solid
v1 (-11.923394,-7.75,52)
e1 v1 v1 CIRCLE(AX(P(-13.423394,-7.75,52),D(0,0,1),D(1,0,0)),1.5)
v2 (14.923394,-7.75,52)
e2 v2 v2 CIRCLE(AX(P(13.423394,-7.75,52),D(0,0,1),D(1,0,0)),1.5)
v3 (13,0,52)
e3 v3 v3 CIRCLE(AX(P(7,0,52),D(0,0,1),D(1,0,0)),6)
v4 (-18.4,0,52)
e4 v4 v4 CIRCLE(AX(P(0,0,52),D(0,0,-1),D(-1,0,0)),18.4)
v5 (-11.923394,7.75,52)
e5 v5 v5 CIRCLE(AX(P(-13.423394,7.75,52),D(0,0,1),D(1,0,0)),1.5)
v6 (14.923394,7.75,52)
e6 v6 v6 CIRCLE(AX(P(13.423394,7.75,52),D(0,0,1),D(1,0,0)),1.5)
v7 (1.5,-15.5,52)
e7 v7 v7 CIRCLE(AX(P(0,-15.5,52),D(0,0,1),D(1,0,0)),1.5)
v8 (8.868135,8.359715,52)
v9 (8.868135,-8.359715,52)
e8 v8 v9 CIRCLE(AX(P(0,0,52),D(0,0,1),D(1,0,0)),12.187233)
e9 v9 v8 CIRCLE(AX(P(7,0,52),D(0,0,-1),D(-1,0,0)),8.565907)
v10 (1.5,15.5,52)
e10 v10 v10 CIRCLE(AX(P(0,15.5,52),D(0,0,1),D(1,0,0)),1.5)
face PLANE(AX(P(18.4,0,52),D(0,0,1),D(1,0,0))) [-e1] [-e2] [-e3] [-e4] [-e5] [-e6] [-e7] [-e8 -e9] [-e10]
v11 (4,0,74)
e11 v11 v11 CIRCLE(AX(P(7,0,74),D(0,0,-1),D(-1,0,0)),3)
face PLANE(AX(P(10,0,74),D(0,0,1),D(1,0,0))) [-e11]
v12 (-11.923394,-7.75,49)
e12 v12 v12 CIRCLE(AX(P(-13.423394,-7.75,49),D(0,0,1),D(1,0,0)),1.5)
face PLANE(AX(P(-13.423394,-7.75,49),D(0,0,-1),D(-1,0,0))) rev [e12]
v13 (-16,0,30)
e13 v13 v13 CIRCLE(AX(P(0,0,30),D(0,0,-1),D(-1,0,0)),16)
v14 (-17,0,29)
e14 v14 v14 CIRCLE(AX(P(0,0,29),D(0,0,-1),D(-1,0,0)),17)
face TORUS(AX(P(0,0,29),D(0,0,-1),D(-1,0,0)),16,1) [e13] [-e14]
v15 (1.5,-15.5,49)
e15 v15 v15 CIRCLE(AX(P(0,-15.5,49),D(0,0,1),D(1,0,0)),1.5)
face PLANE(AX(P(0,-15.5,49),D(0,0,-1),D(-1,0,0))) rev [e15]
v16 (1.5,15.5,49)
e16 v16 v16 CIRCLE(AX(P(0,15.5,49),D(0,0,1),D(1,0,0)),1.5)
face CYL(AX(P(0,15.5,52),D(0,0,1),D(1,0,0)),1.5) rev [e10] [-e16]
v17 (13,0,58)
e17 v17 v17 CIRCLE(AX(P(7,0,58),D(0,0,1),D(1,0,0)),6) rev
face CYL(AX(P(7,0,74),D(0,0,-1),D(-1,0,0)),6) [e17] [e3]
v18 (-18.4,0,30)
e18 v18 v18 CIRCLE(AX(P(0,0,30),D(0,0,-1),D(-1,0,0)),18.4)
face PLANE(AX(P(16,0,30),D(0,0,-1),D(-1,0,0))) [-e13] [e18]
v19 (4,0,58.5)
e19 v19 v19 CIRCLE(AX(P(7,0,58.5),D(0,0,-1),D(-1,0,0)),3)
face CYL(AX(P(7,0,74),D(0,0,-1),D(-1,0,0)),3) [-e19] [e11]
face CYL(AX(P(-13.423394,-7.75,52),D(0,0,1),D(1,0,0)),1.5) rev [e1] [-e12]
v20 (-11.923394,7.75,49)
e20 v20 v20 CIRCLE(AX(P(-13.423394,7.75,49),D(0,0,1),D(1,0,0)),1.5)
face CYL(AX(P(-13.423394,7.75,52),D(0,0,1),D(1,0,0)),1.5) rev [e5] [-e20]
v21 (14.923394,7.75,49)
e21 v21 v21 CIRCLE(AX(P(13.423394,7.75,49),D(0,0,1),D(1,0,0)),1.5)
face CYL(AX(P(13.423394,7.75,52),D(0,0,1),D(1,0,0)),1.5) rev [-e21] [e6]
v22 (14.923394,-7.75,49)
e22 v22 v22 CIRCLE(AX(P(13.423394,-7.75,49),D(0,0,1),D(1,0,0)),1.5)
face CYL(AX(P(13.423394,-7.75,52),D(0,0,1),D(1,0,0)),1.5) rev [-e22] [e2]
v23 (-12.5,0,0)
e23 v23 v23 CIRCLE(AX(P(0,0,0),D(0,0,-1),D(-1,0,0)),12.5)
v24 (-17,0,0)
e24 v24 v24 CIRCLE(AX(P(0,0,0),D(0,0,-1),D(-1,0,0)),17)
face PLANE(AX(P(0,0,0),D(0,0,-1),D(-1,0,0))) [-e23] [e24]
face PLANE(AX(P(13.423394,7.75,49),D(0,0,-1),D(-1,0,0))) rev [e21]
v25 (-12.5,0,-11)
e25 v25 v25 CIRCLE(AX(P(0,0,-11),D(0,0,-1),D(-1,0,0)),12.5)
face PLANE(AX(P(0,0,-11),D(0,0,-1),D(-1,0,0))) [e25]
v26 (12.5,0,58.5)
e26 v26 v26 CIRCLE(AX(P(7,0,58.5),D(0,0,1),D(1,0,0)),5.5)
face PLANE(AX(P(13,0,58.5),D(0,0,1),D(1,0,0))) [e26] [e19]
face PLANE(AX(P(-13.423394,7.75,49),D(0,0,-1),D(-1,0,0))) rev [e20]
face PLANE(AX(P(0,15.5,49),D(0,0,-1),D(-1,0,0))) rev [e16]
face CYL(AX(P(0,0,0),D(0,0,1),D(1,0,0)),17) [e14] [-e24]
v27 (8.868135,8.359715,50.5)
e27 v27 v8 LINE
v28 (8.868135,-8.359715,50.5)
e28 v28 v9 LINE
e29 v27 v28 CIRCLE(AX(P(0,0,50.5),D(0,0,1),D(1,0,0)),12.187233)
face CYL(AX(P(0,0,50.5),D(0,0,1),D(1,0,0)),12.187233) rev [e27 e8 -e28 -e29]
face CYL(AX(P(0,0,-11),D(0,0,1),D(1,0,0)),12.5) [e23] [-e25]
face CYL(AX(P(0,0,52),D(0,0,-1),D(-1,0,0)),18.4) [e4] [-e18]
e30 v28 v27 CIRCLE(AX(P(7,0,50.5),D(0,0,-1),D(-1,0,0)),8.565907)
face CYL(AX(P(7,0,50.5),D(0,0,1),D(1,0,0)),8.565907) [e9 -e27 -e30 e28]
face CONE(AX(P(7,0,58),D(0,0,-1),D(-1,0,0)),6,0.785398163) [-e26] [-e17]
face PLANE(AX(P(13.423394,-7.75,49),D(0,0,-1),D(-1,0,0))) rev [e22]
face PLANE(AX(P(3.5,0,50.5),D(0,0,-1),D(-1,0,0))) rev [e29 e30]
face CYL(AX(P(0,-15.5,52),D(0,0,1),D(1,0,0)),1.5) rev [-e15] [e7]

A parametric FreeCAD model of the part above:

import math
import FreeCAD as App
import Part
import Sketcher

V = App.Vector


def edges_at(feature, points):
    """Names of the edges that pass closest to the given points."""
    edges = feature.Shape.Edges
    near = lambda p: min(range(len(edges)), key=lambda i: edges[i].distToShape(Part.Vertex(*p))[0])
    return sorted({f"Edge{near(p) + 1}" for p in points})


def add_polygon(sketch, points):
    """Adds a closed chain of lines whose ends are joined by coincident constraints."""
    first, n = sketch.GeometryCount, len(points)
    for a, b in zip(points, points[1:] + points[:1]):
        sketch.addGeometry(Part.LineSegment(App.Vector(*a, 0), App.Vector(*b, 0)), False)
    for i in range(n):
        sketch.addConstraint(Sketcher.Constraint("Coincident", first + i, 2, first + (i + 1) % n, 1))

doc = App.newDocument("Part")
body = doc.addObject("PartDesign::Body", "Body")

# Sketch on XZ plane
sketch1 = body.newObject("Sketcher::SketchObject", "Sketch")
sketch1.AttachmentSupport = (doc.getObject("XZ_Plane"), [""])
sketch1.MapMode = "FlatFace"
sketch1.addGeometry([
    Part.LineSegment(V(18.4, 52, 0), V(0, 52, 0)),  # 0
    Part.LineSegment(V(0, 52, 0), V(0, 29, 0)),  # 1
    Part.LineSegment(V(0, 29, 0), V(17, 29, 0)),  # 2
    Part.ArcOfCircle(Part.Circle(V(16, 29, 0), V(0, 0, 1), 1), math.radians(0), math.radians(90)),  # 3
    Part.LineSegment(V(16, 30, 0), V(18.4, 30, 0)),  # 4
    Part.LineSegment(V(18.4, 30, 0), V(18.4, 52, 0)),  # 5
], False)
sketch1.addConstraint([
    Sketcher.Constraint("Coincident", 0, 2, 1, 1),
    Sketcher.Constraint("Coincident", 1, 2, 2, 1),
    Sketcher.Constraint("Coincident", 2, 2, 3, 1),
    Sketcher.Constraint("Tangent", 3, 2, 4, 1),
    Sketcher.Constraint("Coincident", 4, 2, 5, 1),
    Sketcher.Constraint("Coincident", 5, 2, 0, 1),
    Sketcher.Constraint("Horizontal", 0),
    Sketcher.Constraint("Vertical", 1),
    Sketcher.Constraint("Horizontal", 2),
    Sketcher.Constraint("Horizontal", 4),
    Sketcher.Constraint("Vertical", 5),
    Sketcher.Constraint("PointOnObject", 0, 2, -2),
    Sketcher.Constraint("Horizontal", 3, 3, 1, 2),
    Sketcher.Constraint("Radius", 3, 1.0),
    Sketcher.Constraint("DistanceX", 2, 1, 2, 2, 17.0),
    Sketcher.Constraint("DistanceY", 1, 2, 1, 1, 23.0),
    Sketcher.Constraint("DistanceX", 0, 2, 0, 1, 18.4),
    Sketcher.Constraint("DistanceY", -1, 1, 3, 3, 29.0),
])
revolution = body.newObject("PartDesign::Revolution", "Revolution")
revolution.Profile = sketch1
revolution.ReferenceAxis = (sketch1, ["V_Axis"])
revolution.Angle = 360

# Sketch on XY plane
sketch2 = body.newObject("Sketcher::SketchObject", "Sketch001")
sketch2.AttachmentSupport = (doc.getObject("XY_Plane"), [""])
sketch2.MapMode = "FlatFace"
sketch2.AttachmentOffset = App.Placement(V(0, 0, 29), App.Rotation())
sketch2.addGeometry(Part.Circle(V(0, 0, 0), V(0, 0, 1), 17), False)
sketch2.addConstraint([
    Sketcher.Constraint("Coincident", 0, 3, -1, 1),
    Sketcher.Constraint("Diameter", 0, 34.0),
])
pad1 = body.newObject("PartDesign::Pad", "Pad")
pad1.Profile = sketch2
pad1.Length = 29
pad1.Reversed = True

# Sketch on XY plane
sketch3 = body.newObject("Sketcher::SketchObject", "Sketch002")
sketch3.AttachmentSupport = (doc.getObject("XY_Plane"), [""])
sketch3.MapMode = "FlatFace"
sketch3.addGeometry(Part.Circle(V(0, 0, 0), V(0, 0, 1), 12.5), False)
sketch3.addConstraint([
    Sketcher.Constraint("Coincident", 0, 3, -1, 1),
    Sketcher.Constraint("Diameter", 0, 25.0),
])
pad2 = body.newObject("PartDesign::Pad", "Pad001")
pad2.Profile = sketch3
pad2.Length = 11
pad2.Reversed = True

# Sketch on XY plane
sketch4 = body.newObject("Sketcher::SketchObject", "Sketch003")
sketch4.AttachmentSupport = (doc.getObject("XY_Plane"), [""])
sketch4.MapMode = "FlatFace"
sketch4.AttachmentOffset = App.Placement(V(0, 0, 52), App.Rotation())
sketch4.addGeometry([
    Part.ArcOfCircle(Part.Circle(V(0, 0, 0), V(0, 0, 1), 12.187233), math.radians(43.309607), math.radians(316.690393)),
    Part.ArcOfCircle(Part.Circle(V(7, 0, 0), V(0, 0, 1), 8.565907), math.radians(77.403153), math.radians(282.596847)),
], False)
sketch4.addConstraint([
    Sketcher.Constraint("Coincident", 0, 1, 1, 1),
    Sketcher.Constraint("Coincident", 1, 2, 0, 2),
    Sketcher.Constraint("Coincident", 0, 3, -1, 1),
    Sketcher.Constraint("PointOnObject", 1, 3, -1),
    Sketcher.Constraint("DistanceX", -1, 1, 1, 3, 7.0),
    Sketcher.Constraint("Radius", 0, 12.187233),
    Sketcher.Constraint("Radius", 1, 8.565907),
])
pocket1 = body.newObject("PartDesign::Pocket", "Pocket")
pocket1.Profile = sketch4
pocket1.Length = 1.5

# Sketch on XZ plane
sketch5 = body.newObject("Sketcher::SketchObject", "Sketch004")
sketch5.AttachmentSupport = (doc.getObject("XZ_Plane"), [""])
sketch5.MapMode = "FlatFace"
add_polygon(sketch5, [(10, 74), (7, 74), (7, 52), (13, 52), (13, 58.5), (10, 58.5)])  # lines 0-5
sketch5.addGeometry(Part.LineSegment(V(7, 74, 0), V(7, 52, 0)), True)  # axis
sketch5.addConstraint([
    Sketcher.Constraint("Horizontal", 0),
    Sketcher.Constraint("Vertical", 1),
    Sketcher.Constraint("Horizontal", 2),
    Sketcher.Constraint("Vertical", 3),
    Sketcher.Constraint("Horizontal", 4),
    Sketcher.Constraint("Vertical", 5),
    Sketcher.Constraint("Vertical", 6),
    Sketcher.Constraint("Coincident", 6, 1, 0, 2),
    Sketcher.Constraint("Horizontal", 2, 2, 6, 2),
    Sketcher.Constraint("Equal", 0, 4),
    Sketcher.Constraint("DistanceX", 0, 2, 0, 1, 3.0),
    Sketcher.Constraint("DistanceY", 1, 2, 1, 1, 22.0),
    Sketcher.Constraint("DistanceY", 3, 1, 3, 2, 6.5),
    Sketcher.Constraint("DistanceX", -1, 1, 0, 2, 7.0),
    Sketcher.Constraint("DistanceY", -1, 1, 0, 2, 74.0),
])
revolution2 = body.newObject("PartDesign::Revolution", "Revolution001")
revolution2.Profile = sketch5
revolution2.ReferenceAxis = (sketch5, ["Axis0"])
revolution2.Angle = 360

# Sketch on XY plane
sketch6 = body.newObject("Sketcher::SketchObject", "Sketch005")
sketch6.AttachmentSupport = (doc.getObject("XY_Plane"), [""])
sketch6.MapMode = "FlatFace"
sketch6.AttachmentOffset = App.Placement(V(0, 0, 52), App.Rotation())
sketch6.addGeometry([
    Part.Circle(V(-13.423394, 7.75, 0), V(0, 0, 1), 1.5),  # 0
    Part.Circle(V(-13.423394, -7.75, 0), V(0, 0, 1), 1.5),  # 1
    Part.Circle(V(0, -15.5, 0), V(0, 0, 1), 1.5),  # 2
    Part.Circle(V(13.423394, -7.75, 0), V(0, 0, 1), 1.5),  # 3
    Part.Circle(V(13.423394, 7.75, 0), V(0, 0, 1), 1.5),  # 4
    Part.Circle(V(0, 15.5, 0), V(0, 0, 1), 1.5),  # 5
], False)
sketch6.addConstraint([
    Sketcher.Constraint("Equal", 0, 1),
    Sketcher.Constraint("Equal", 1, 2),
    Sketcher.Constraint("Equal", 2, 3),
    Sketcher.Constraint("Equal", 3, 4),
    Sketcher.Constraint("Equal", 4, 5),
    Sketcher.Constraint("Symmetric", 0, 3, 3, 3, -1, 1),
    Sketcher.Constraint("Symmetric", 1, 3, 4, 3, -1, 1),
    Sketcher.Constraint("Symmetric", 2, 3, 5, 3, -1, 1),
    Sketcher.Constraint("Symmetric", 1, 3, 3, 3, -2),
    Sketcher.Constraint("PointOnObject", 2, 3, -2),
    Sketcher.Constraint("Diameter", 0, 3.0),
    Sketcher.Constraint("DistanceY", 2, 3, 5, 3, 31.0),
    Sketcher.Constraint("DistanceY", 1, 3, 0, 3, 15.5),
    Sketcher.Constraint("DistanceX", 0, 3, -1, 1, 13.423394),
])
doc.recompute()
hole = body.newObject("PartDesign::Hole", "Hole")
hole.Profile = sketch6
hole.ThreadType = "None"
hole.Diameter = 3
hole.DepthType = "Dimension"
hole.Depth = 3
hole.DrillPoint = "Flat"
doc.recompute()

chamfer = body.newObject("PartDesign::Chamfer", "Chamfer")
chamfer.Base = (hole, edges_at(hole, [(13, 0, 58.5)]))
chamfer.Size = 0.5

doc.recompute()
